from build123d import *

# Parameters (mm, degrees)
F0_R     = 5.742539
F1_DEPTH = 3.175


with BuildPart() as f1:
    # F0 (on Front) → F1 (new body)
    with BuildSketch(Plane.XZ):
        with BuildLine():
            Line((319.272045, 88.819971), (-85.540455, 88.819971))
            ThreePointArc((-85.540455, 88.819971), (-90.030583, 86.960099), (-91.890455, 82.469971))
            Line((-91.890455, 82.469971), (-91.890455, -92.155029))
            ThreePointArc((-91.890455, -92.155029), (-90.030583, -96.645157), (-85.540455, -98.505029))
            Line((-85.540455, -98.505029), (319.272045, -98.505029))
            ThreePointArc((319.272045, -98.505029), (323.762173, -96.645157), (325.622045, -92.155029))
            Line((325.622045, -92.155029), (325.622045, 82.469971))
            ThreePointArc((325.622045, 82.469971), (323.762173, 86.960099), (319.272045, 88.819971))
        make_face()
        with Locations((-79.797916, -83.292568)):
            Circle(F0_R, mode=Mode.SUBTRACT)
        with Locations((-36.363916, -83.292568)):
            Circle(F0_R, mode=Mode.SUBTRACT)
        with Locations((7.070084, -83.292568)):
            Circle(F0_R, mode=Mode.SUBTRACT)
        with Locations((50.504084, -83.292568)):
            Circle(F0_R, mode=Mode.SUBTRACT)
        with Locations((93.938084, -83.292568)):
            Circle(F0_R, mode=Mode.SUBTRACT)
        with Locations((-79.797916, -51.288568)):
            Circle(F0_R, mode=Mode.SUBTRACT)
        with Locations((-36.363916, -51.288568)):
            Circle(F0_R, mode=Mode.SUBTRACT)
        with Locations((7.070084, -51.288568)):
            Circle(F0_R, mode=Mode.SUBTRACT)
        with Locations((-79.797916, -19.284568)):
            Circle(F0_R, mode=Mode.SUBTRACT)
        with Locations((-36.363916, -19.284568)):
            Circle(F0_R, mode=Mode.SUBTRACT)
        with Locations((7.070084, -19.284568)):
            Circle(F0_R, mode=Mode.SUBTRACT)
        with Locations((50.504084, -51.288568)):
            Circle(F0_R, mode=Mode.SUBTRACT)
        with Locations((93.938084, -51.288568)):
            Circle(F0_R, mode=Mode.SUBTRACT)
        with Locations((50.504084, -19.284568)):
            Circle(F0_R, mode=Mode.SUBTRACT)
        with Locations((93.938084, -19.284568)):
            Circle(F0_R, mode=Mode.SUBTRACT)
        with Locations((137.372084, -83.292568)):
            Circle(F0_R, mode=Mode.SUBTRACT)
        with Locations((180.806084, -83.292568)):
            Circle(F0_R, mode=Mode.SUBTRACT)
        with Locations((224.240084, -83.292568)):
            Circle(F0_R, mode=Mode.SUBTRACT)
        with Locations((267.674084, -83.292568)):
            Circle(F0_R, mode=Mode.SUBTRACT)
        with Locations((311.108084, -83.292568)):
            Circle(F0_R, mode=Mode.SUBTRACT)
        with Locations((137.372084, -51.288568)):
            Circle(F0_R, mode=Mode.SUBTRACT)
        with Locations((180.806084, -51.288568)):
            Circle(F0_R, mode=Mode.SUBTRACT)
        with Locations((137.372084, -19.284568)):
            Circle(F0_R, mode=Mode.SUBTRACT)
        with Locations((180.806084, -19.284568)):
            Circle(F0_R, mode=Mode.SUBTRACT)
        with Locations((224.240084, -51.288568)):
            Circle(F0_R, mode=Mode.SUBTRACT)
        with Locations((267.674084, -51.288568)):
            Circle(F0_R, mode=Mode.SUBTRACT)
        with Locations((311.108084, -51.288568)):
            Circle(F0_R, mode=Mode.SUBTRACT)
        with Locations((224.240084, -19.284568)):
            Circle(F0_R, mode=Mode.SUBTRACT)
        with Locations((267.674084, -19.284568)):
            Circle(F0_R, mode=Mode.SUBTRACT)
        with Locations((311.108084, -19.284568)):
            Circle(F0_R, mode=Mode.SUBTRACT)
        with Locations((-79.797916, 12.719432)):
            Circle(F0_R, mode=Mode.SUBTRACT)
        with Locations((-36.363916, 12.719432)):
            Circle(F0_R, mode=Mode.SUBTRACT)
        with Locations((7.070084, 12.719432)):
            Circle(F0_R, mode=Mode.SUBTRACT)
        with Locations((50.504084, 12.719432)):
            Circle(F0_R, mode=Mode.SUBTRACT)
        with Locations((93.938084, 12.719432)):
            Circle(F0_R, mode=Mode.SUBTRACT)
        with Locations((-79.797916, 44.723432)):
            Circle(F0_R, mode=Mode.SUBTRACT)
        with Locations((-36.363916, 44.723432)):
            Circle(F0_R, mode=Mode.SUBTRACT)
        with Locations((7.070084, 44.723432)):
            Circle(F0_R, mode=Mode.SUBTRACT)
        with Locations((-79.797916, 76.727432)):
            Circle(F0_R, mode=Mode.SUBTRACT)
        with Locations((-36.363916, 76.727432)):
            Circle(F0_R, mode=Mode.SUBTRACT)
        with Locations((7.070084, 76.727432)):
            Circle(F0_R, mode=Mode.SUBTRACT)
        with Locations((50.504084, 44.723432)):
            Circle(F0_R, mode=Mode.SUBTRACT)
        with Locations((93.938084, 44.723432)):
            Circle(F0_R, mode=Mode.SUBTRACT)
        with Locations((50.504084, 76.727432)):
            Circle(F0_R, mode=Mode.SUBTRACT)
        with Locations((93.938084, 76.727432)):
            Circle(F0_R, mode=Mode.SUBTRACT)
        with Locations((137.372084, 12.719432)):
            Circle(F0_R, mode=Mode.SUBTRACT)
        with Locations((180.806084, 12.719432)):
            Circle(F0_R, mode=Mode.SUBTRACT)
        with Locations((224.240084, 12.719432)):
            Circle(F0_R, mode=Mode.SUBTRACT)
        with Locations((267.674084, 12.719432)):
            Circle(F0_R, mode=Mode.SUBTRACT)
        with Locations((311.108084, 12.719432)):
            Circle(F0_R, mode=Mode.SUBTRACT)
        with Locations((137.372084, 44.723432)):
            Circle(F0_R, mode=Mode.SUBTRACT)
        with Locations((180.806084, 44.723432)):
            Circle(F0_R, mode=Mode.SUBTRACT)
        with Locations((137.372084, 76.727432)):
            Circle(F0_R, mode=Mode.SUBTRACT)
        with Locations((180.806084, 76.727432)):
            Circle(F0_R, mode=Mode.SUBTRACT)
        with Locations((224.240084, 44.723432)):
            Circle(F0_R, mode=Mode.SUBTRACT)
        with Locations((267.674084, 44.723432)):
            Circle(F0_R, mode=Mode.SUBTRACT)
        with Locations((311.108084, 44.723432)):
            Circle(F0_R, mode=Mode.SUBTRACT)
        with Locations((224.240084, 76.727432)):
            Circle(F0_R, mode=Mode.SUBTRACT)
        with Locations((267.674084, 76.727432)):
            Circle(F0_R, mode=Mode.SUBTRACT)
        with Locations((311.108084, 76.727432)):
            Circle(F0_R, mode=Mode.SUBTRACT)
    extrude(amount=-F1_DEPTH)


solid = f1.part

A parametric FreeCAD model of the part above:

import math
import FreeCAD as App
import Part
import Sketcher
Q = App.Units.Quantity

doc = App.newDocument("Part")
params = doc.addObject("Spreadsheet::Sheet", "Params")
for row, (alias, value) in enumerate([
    ("sketch1_radius", "0.25 in"),
    ("sketch1_width", "15.9375 in"),
    ("sketch1_height", "6.875 in"),
    ("pad1_length", "0.125 in"),
], start=1):
    params.set(f"A{row}", alias)
    params.set(f"B{row}", "=" + value)
    params.setAlias(f"B{row}", alias)

body = doc.addObject("PartDesign::Body", "Body")

sketch1 = body.newObject("Sketcher::SketchObject", "Sketch")
sketch1.AttachmentSupport = (doc.getObject("XZ_Plane"), [""])
sketch1.MapMode = "FlatFace"
sketch1.addGeometry(Part.LineSegment(App.Vector(319, 89, 0), App.Vector(-86, 89, 0)), False)
sketch1.addGeometry(Part.ArcOfCircle(Part.Circle(App.Vector(-86, 82, 0), App.Vector(0, 0, 1), 6), math.radians(90), math.radians(180)), False)
sketch1.addGeometry(Part.LineSegment(App.Vector(-92, 82, 0), App.Vector(-92, -92, 0)), False)
sketch1.addGeometry(Part.ArcOfCircle(Part.Circle(App.Vector(-86, -92, 0), App.Vector(0, 0, 1), 6), math.radians(-180), math.radians(-90)), False)
sketch1.addGeometry(Part.LineSegment(App.Vector(-86, -99, 0), App.Vector(319, -99, 0)), False)
sketch1.addGeometry(Part.ArcOfCircle(Part.Circle(App.Vector(319, -92, 0), App.Vector(0, 0, 1), 6), math.radians(-90), math.radians(0)), False)
sketch1.addGeometry(Part.LineSegment(App.Vector(326, -92, 0), App.Vector(326, 82, 0)), False)
sketch1.addGeometry(Part.ArcOfCircle(Part.Circle(App.Vector(319, 82, 0), App.Vector(0, 0, 1), 6), math.radians(0), math.radians(90)), False)
sketch1.addGeometry(Part.Circle(App.Vector(-80, -83, 0), App.Vector(0, 0, 1), 6), False)
sketch1.addGeometry(Part.Circle(App.Vector(-36, -83, 0), App.Vector(0, 0, 1), 6), False)
sketch1.addGeometry(Part.Circle(App.Vector(7, -83, 0), App.Vector(0, 0, 1), 6), False)
sketch1.addGeometry(Part.Circle(App.Vector(-80, -51, 0), App.Vector(0, 0, 1), 6), False)
sketch1.addGeometry(Part.Circle(App.Vector(-36, -51, 0), App.Vector(0, 0, 1), 6), False)
sketch1.addGeometry(Part.Circle(App.Vector(7, -51, 0), App.Vector(0, 0, 1), 6), False)
sketch1.addGeometry(Part.Circle(App.Vector(51, -83, 0), App.Vector(0, 0, 1), 6), False)
sketch1.addGeometry(Part.Circle(App.Vector(94, -83, 0), App.Vector(0, 0, 1), 6), False)
sketch1.addGeometry(Part.Circle(App.Vector(51, -51, 0), App.Vector(0, 0, 1), 6), False)
sketch1.addGeometry(Part.Circle(App.Vector(94, -51, 0), App.Vector(0, 0, 1), 6), False)
sketch1.addGeometry(Part.Circle(App.Vector(-80, -19, 0), App.Vector(0, 0, 1), 6), False)
sketch1.addGeometry(Part.Circle(App.Vector(-36, -19, 0), App.Vector(0, 0, 1), 6), False)
sketch1.addGeometry(Part.Circle(App.Vector(7, -19, 0), App.Vector(0, 0, 1), 6), False)
sketch1.addGeometry(Part.Circle(App.Vector(51, -19, 0), App.Vector(0, 0, 1), 6), False)
sketch1.addGeometry(Part.Circle(App.Vector(94, -19, 0), App.Vector(0, 0, 1), 6), False)
sketch1.addGeometry(Part.Circle(App.Vector(137, -83, 0), App.Vector(0, 0, 1), 6), False)
sketch1.addGeometry(Part.Circle(App.Vector(181, -83, 0), App.Vector(0, 0, 1), 6), False)
sketch1.addGeometry(Part.Circle(App.Vector(137, -51, 0), App.Vector(0, 0, 1), 6), False)
sketch1.addGeometry(Part.Circle(App.Vector(181, -51, 0), App.Vector(0, 0, 1), 6), False)
sketch1.addGeometry(Part.Circle(App.Vector(224, -83, 0), App.Vector(0, 0, 1), 6), False)
sketch1.addGeometry(Part.Circle(App.Vector(268, -83, 0), App.Vector(0, 0, 1), 6), False)
sketch1.addGeometry(Part.Circle(App.Vector(311, -83, 0), App.Vector(0, 0, 1), 6), False)
sketch1.addGeometry(Part.Circle(App.Vector(224, -51, 0), App.Vector(0, 0, 1), 6), False)
sketch1.addGeometry(Part.Circle(App.Vector(268, -51, 0), App.Vector(0, 0, 1), 6), False)
sketch1.addGeometry(Part.Circle(App.Vector(311, -51, 0), App.Vector(0, 0, 1), 6), False)
sketch1.addGeometry(Part.Circle(App.Vector(137, -19, 0), App.Vector(0, 0, 1), 6), False)
sketch1.addGeometry(Part.Circle(App.Vector(181, -19, 0), App.Vector(0, 0, 1), 6), False)
sketch1.addGeometry(Part.Circle(App.Vector(224, -19, 0), App.Vector(0, 0, 1), 6), False)
sketch1.addGeometry(Part.Circle(App.Vector(268, -19, 0), App.Vector(0, 0, 1), 6), False)
sketch1.addGeometry(Part.Circle(App.Vector(311, -19, 0), App.Vector(0, 0, 1), 6), False)
sketch1.addGeometry(Part.Circle(App.Vector(-80, 13, 0), App.Vector(0, 0, 1), 6), False)
sketch1.addGeometry(Part.Circle(App.Vector(-36, 13, 0), App.Vector(0, 0, 1), 6), False)
sketch1.addGeometry(Part.Circle(App.Vector(7, 13, 0), App.Vector(0, 0, 1), 6), False)
sketch1.addGeometry(Part.Circle(App.Vector(51, 13, 0), App.Vector(0, 0, 1), 6), False)
sketch1.addGeometry(Part.Circle(App.Vector(94, 13, 0), App.Vector(0, 0, 1), 6), False)
sketch1.addGeometry(Part.Circle(App.Vector(-80, 45, 0), App.Vector(0, 0, 1), 6), False)
sketch1.addGeometry(Part.Circle(App.Vector(-36, 45, 0), App.Vector(0, 0, 1), 6), False)
sketch1.addGeometry(Part.Circle(App.Vector(7, 45, 0), App.Vector(0, 0, 1), 6), False)
sketch1.addGeometry(Part.Circle(App.Vector(-80, 77, 0), App.Vector(0, 0, 1), 6), False)
sketch1.addGeometry(Part.Circle(App.Vector(-36, 77, 0), App.Vector(0, 0, 1), 6), False)
sketch1.addGeometry(Part.Circle(App.Vector(7, 77, 0), App.Vector(0, 0, 1), 6), False)
sketch1.addGeometry(Part.Circle(App.Vector(51, 45, 0), App.Vector(0, 0, 1), 6), False)
sketch1.addGeometry(Part.Circle(App.Vector(94, 45, 0), App.Vector(0, 0, 1), 6), False)
sketch1.addGeometry(Part.Circle(App.Vector(51, 77, 0), App.Vector(0, 0, 1), 6), False)
sketch1.addGeometry(Part.Circle(App.Vector(94, 77, 0), App.Vector(0, 0, 1), 6), False)
sketch1.addGeometry(Part.Circle(App.Vector(137, 13, 0), App.Vector(0, 0, 1), 6), False)
sketch1.addGeometry(Part.Circle(App.Vector(181, 13, 0), App.Vector(0, 0, 1), 6), False)
sketch1.addGeometry(Part.Circle(App.Vector(224, 13, 0), App.Vector(0, 0, 1), 6), False)
sketch1.addGeometry(Part.Circle(App.Vector(268, 13, 0), App.Vector(0, 0, 1), 6), False)
sketch1.addGeometry(Part.Circle(App.Vector(311, 13, 0), App.Vector(0, 0, 1), 6), False)
sketch1.addGeometry(Part.Circle(App.Vector(137, 45, 0), App.Vector(0, 0, 1), 6), False)
sketch1.addGeometry(Part.Circle(App.Vector(181, 45, 0), App.Vector(0, 0, 1), 6), False)
sketch1.addGeometry(Part.Circle(App.Vector(137, 77, 0), App.Vector(0, 0, 1), 6), False)
sketch1.addGeometry(Part.Circle(App.Vector(181, 77, 0), App.Vector(0, 0, 1), 6), False)
sketch1.addGeometry(Part.Circle(App.Vector(224, 45, 0), App.Vector(0, 0, 1), 6), False)
sketch1.addGeometry(Part.Circle(App.Vector(268, 45, 0), App.Vector(0, 0, 1), 6), False)
sketch1.addGeometry(Part.Circle(App.Vector(311, 45, 0), App.Vector(0, 0, 1), 6), False)
sketch1.addGeometry(Part.Circle(App.Vector(224, 77, 0), App.Vector(0, 0, 1), 6), False)
sketch1.addGeometry(Part.Circle(App.Vector(268, 77, 0), App.Vector(0, 0, 1), 6), False)
sketch1.addGeometry(Part.Circle(App.Vector(311, 77, 0), App.Vector(0, 0, 1), 6), False)
sketch1.addConstraint(Sketcher.Constraint("Tangent", 0, 2, 1, 1))
sketch1.addConstraint(Sketcher.Constraint("Tangent", 1, 2, 2, 1))
sketch1.addConstraint(Sketcher.Constraint("Tangent", 2, 2, 3, 1))
sketch1.addConstraint(Sketcher.Constraint("Tangent", 3, 2, 4, 1))
sketch1.addConstraint(Sketcher.Constraint("Tangent", 4, 2, 5, 1))
sketch1.addConstraint(Sketcher.Constraint("Tangent", 5, 2, 6, 1))
sketch1.addConstraint(Sketcher.Constraint("Tangent", 6, 2, 7, 1))
sketch1.addConstraint(Sketcher.Constraint("Tangent", 7, 2, 0, 1))
sketch1.addConstraint(Sketcher.Constraint("Horizontal", 0))
sketch1.addConstraint(Sketcher.Constraint("Vertical", 2))
sketch1.addConstraint(Sketcher.Constraint("Horizontal", 4))
sketch1.addConstraint(Sketcher.Constraint("Vertical", 6))
sketch1.addConstraint(Sketcher.Constraint("Equal", 1, 3))
sketch1.addConstraint(Sketcher.Constraint("Equal", 3, 5))
sketch1.addConstraint(Sketcher.Constraint("Equal", 5, 7))
sketch1.addConstraint(Sketcher.Constraint("Equal", 8, 9))
sketch1.addConstraint(Sketcher.Constraint("Equal", 9, 10))
sketch1.addConstraint(Sketcher.Constraint("Equal", 10, 11))
sketch1.addConstraint(Sketcher.Constraint("Equal", 11, 12))
sketch1.addConstraint(Sketcher.Constraint("Equal", 12, 13))
sketch1.addConstraint(Sketcher.Constraint("Equal", 13, 14))
sketch1.addConstraint(Sketcher.Constraint("Equal", 14, 15))
sketch1.addConstraint(Sketcher.Constraint("Equal", 15, 16))
sketch1.addConstraint(Sketcher.Constraint("Equal", 16, 17))
sketch1.addConstraint(Sketcher.Constraint("Equal", 17, 18))
sketch1.addConstraint(Sketcher.Constraint("Equal", 18, 19))
sketch1.addConstraint(Sketcher.Constraint("Equal", 19, 20))
sketch1.addConstraint(Sketcher.Constraint("Equal", 20, 21))
sketch1.addConstraint(Sketcher.Constraint("Equal", 21, 22))
sketch1.addConstraint(Sketcher.Constraint("Equal", 22, 23))
sketch1.addConstraint(Sketcher.Constraint("Equal", 23, 24))
sketch1.addConstraint(Sketcher.Constraint("Equal", 24, 25))
sketch1.addConstraint(Sketcher.Constraint("Equal", 25, 26))
sketch1.addConstraint(Sketcher.Constraint("Equal", 26, 27))
sketch1.addConstraint(Sketcher.Constraint("Equal", 27, 28))
sketch1.addConstraint(Sketcher.Constraint("Equal", 28, 29))
sketch1.addConstraint(Sketcher.Constraint("Equal", 29, 30))
sketch1.addConstraint(Sketcher.Constraint("Equal", 30, 31))
sketch1.addConstraint(Sketcher.Constraint("Equal", 31, 32))
sketch1.addConstraint(Sketcher.Constraint("Equal", 32, 33))
sketch1.addConstraint(Sketcher.Constraint("Equal", 33, 34))
sketch1.addConstraint(Sketcher.Constraint("Equal", 34, 35))
sketch1.addConstraint(Sketcher.Constraint("Equal", 35, 36))
sketch1.addConstraint(Sketcher.Constraint("Equal", 36, 37))
sketch1.addConstraint(Sketcher.Constraint("Equal", 37, 38))
sketch1.addConstraint(Sketcher.Constraint("Equal", 38, 39))
sketch1.addConstraint(Sketcher.Constraint("Equal", 39, 40))
sketch1.addConstraint(Sketcher.Constraint("Equal", 40, 41))
sketch1.addConstraint(Sketcher.Constraint("Equal", 41, 42))
sketch1.addConstraint(Sketcher.Constraint("Equal", 42, 43))
sketch1.addConstraint(Sketcher.Constraint("Equal", 43, 44))
sketch1.addConstraint(Sketcher.Constraint("Equal", 44, 45))
sketch1.addConstraint(Sketcher.Constraint("Equal", 45, 46))
sketch1.addConstraint(Sketcher.Constraint("Equal", 46, 47))
sketch1.addConstraint(Sketcher.Constraint("Equal", 47, 48))
sketch1.addConstraint(Sketcher.Constraint("Equal", 48, 49))
sketch1.addConstraint(Sketcher.Constraint("Equal", 49, 50))
sketch1.addConstraint(Sketcher.Constraint("Equal", 50, 51))
sketch1.addConstraint(Sketcher.Constraint("Equal", 51, 52))
sketch1.addConstraint(Sketcher.Constraint("Equal", 52, 53))
sketch1.addConstraint(Sketcher.Constraint("Equal", 53, 54))
sketch1.addConstraint(Sketcher.Constraint("Equal", 54, 55))
sketch1.addConstraint(Sketcher.Constraint("Equal", 55, 56))
sketch1.addConstraint(Sketcher.Constraint("Equal", 56, 57))
sketch1.addConstraint(Sketcher.Constraint("Equal", 57, 58))
sketch1.addConstraint(Sketcher.Constraint("Equal", 58, 59))
sketch1.addConstraint(Sketcher.Constraint("Equal", 59, 60))
sketch1.addConstraint(Sketcher.Constraint("Equal", 60, 61))
sketch1.addConstraint(Sketcher.Constraint("Equal", 61, 62))
sketch1.addConstraint(Sketcher.Constraint("Equal", 62, 63))
sketch1.addConstraint(Sketcher.Constraint("Equal", 63, 64))
sketch1.addConstraint(Sketcher.Constraint("Equal", 64, 65))
sketch1.addConstraint(Sketcher.Constraint("Equal", 65, 66))
sketch1.addConstraint(Sketcher.Constraint("Equal", 66, 67))
sketch1.addConstraint(Sketcher.Constraint("Horizontal", 8, 3, 9, 3))
sketch1.addConstraint(Sketcher.Constraint("Horizontal", 9, 3, 10, 3))
sketch1.addConstraint(Sketcher.Constraint("Horizontal", 11, 3, 12, 3))
sketch1.addConstraint(Sketcher.Constraint("Horizontal", 12, 3, 13, 3))
sketch1.addConstraint(Sketcher.Constraint("Horizontal", 10, 3, 14, 3))
sketch1.addConstraint(Sketcher.Constraint("Horizontal", 14, 3, 15, 3))
sketch1.addConstraint(Sketcher.Constraint("Horizontal", 13, 3, 16, 3))
sketch1.addConstraint(Sketcher.Constraint("Horizontal", 16, 3, 17, 3))
sketch1.addConstraint(Sketcher.Constraint("Horizontal", 18, 3, 19, 3))
sketch1.addConstraint(Sketcher.Constraint("Horizontal", 19, 3, 20, 3))
sketch1.addConstraint(Sketcher.Constraint("Horizontal", 20, 3, 21, 3))
sketch1.addConstraint(Sketcher.Constraint("Horizontal", 21, 3, 22, 3))
sketch1.addConstraint(Sketcher.Constraint("Horizontal", 15, 3, 23, 3))
sketch1.addConstraint(Sketcher.Constraint("Horizontal", 23, 3, 24, 3))
sketch1.addConstraint(Sketcher.Constraint("Horizontal", 17, 3, 25, 3))
sketch1.addConstraint(Sketcher.Constraint("Horizontal", 25, 3, 26, 3))
sketch1.addConstraint(Sketcher.Constraint("Horizontal", 24, 3, 27, 3))
sketch1.addConstraint(Sketcher.Constraint("Horizontal", 27, 3, 28, 3))
sketch1.addConstraint(Sketcher.Constraint("Horizontal", 28, 3, 29, 3))
sketch1.addConstraint(Sketcher.Constraint("Horizontal", 26, 3, 30, 3))
sketch1.addConstraint(Sketcher.Constraint("Horizontal", 30, 3, 31, 3))
sketch1.addConstraint(Sketcher.Constraint("Horizontal", 31, 3, 32, 3))
sketch1.addConstraint(Sketcher.Constraint("Horizontal", 22, 3, 33, 3))
sketch1.addConstraint(Sketcher.Constraint("Horizontal", 33, 3, 34, 3))
sketch1.addConstraint(Sketcher.Constraint("Horizontal", 34, 3, 35, 3))
sketch1.addConstraint(Sketcher.Constraint("Horizontal", 35, 3, 36, 3))
sketch1.addConstraint(Sketcher.Constraint("Horizontal", 36, 3, 37, 3))
sketch1.addConstraint(Sketcher.Constraint("Horizontal", 38, 3, 39, 3))
sketch1.addConstraint(Sketcher.Constraint("Horizontal", 39, 3, 40, 3))
sketch1.addConstraint(Sketcher.Constraint("Horizontal", 40, 3, 41, 3))
sketch1.addConstraint(Sketcher.Constraint("Horizontal", 41, 3, 42, 3))
sketch1.addConstraint(Sketcher.Constraint("Horizontal", 43, 3, 44, 3))
sketch1.addConstraint(Sketcher.Constraint("Horizontal", 44, 3, 45, 3))
sketch1.addConstraint(Sketcher.Constraint("Horizontal", 46, 3, 47, 3))
sketch1.addConstraint(Sketcher.Constraint("Horizontal", 47, 3, 48, 3))
sketch1.addConstraint(Sketcher.Constraint("Horizontal", 45, 3, 49, 3))
sketch1.addConstraint(Sketcher.Constraint("Horizontal", 49, 3, 50, 3))
sketch1.addConstraint(Sketcher.Constraint("Horizontal", 48, 3, 51, 3))
sketch1.addConstraint(Sketcher.Constraint("Horizontal", 51, 3, 52, 3))
sketch1.addConstraint(Sketcher.Constraint("Horizontal", 42, 3, 53, 3))
sketch1.addConstraint(Sketcher.Constraint("Horizontal", 53, 3, 54, 3))
sketch1.addConstraint(Sketcher.Constraint("Horizontal", 54, 3, 55, 3))
sketch1.addConstraint(Sketcher.Constraint("Horizontal", 55, 3, 56, 3))
sketch1.addConstraint(Sketcher.Constraint("Horizontal", 56, 3, 57, 3))
sketch1.addConstraint(Sketcher.Constraint("Horizontal", 50, 3, 58, 3))
sketch1.addConstraint(Sketcher.Constraint("Horizontal", 58, 3, 59, 3))
sketch1.addConstraint(Sketcher.Constraint("Horizontal", 52, 3, 60, 3))
sketch1.addConstraint(Sketcher.Constraint("Horizontal", 60, 3, 61, 3))
sketch1.addConstraint(Sketcher.Constraint("Horizontal", 59, 3, 62, 3))
sketch1.addConstraint(Sketcher.Constraint("Horizontal", 62, 3, 63, 3))
sketch1.addConstraint(Sketcher.Constraint("Horizontal", 63, 3, 64, 3))
sketch1.addConstraint(Sketcher.Constraint("Horizontal", 61, 3, 65, 3))
sketch1.addConstraint(Sketcher.Constraint("Horizontal", 65, 3, 66, 3))
sketch1.addConstraint(Sketcher.Constraint("Horizontal", 66, 3, 67, 3))
sketch1.addConstraint(Sketcher.Constraint("Vertical", 8, 3, 11, 3))
sketch1.addConstraint(Sketcher.Constraint("Vertical", 9, 3, 12, 3))
sketch1.addConstraint(Sketcher.Constraint("Vertical", 10, 3, 13, 3))
sketch1.addConstraint(Sketcher.Constraint("Vertical", 14, 3, 16, 3))
sketch1.addConstraint(Sketcher.Constraint("Vertical", 15, 3, 17, 3))
sketch1.addConstraint(Sketcher.Constraint("Vertical", 11, 3, 18, 3))
sketch1.addConstraint(Sketcher.Constraint("Vertical", 12, 3, 19, 3))
sketch1.addConstraint(Sketcher.Constraint("Vertical", 13, 3, 20, 3))
sketch1.addConstraint(Sketcher.Constraint("Vertical", 16, 3, 21, 3))
sketch1.addConstraint(Sketcher.Constraint("Vertical", 17, 3, 22, 3))
sketch1.addConstraint(Sketcher.Constraint("Vertical", 23, 3, 25, 3))
sketch1.addConstraint(Sketcher.Constraint("Vertical", 24, 3, 26, 3))
sketch1.addConstraint(Sketcher.Constraint("Vertical", 27, 3, 30, 3))
sketch1.addConstraint(Sketcher.Constraint("Vertical", 28, 3, 31, 3))
sketch1.addConstraint(Sketcher.Constraint("Vertical", 29, 3, 32, 3))
sketch1.addConstraint(Sketcher.Constraint("Vertical", 25, 3, 33, 3))
sketch1.addConstraint(Sketcher.Constraint("Vertical", 26, 3, 34, 3))
sketch1.addConstraint(Sketcher.Constraint("Vertical", 30, 3, 35, 3))
sketch1.addConstraint(Sketcher.Constraint("Vertical", 31, 3, 36, 3))
sketch1.addConstraint(Sketcher.Constraint("Vertical", 32, 3, 37, 3))
sketch1.addConstraint(Sketcher.Constraint("Vertical", 18, 3, 38, 3))
sketch1.addConstraint(Sketcher.Constraint("Vertical", 19, 3, 39, 3))
sketch1.addConstraint(Sketcher.Constraint("Vertical", 20, 3, 40, 3))
sketch1.addConstraint(Sketcher.Constraint("Vertical", 21, 3, 41, 3))
sketch1.addConstraint(Sketcher.Constraint("Vertical", 22, 3, 42, 3))
sketch1.addConstraint(Sketcher.Constraint("Vertical", 38, 3, 43, 3))
sketch1.addConstraint(Sketcher.Constraint("Vertical", 39, 3, 44, 3))
sketch1.addConstraint(Sketcher.Constraint("Vertical", 40, 3, 45, 3))
sketch1.addConstraint(Sketcher.Constraint("Vertical", 43, 3, 46, 3))
sketch1.addConstraint(Sketcher.Constraint("Vertical", 44, 3, 47, 3))
sketch1.addConstraint(Sketcher.Constraint("Vertical", 45, 3, 48, 3))
sketch1.addConstraint(Sketcher.Constraint("Vertical", 41, 3, 49, 3))
sketch1.addConstraint(Sketcher.Constraint("Vertical", 42, 3, 50, 3))
sketch1.addConstraint(Sketcher.Constraint("Vertical", 49, 3, 51, 3))
sketch1.addConstraint(Sketcher.Constraint("Vertical", 50, 3, 52, 3))
sketch1.addConstraint(Sketcher.Constraint("Vertical", 33, 3, 53, 3))
sketch1.addConstraint(Sketcher.Constraint("Vertical", 34, 3, 54, 3))
sketch1.addConstraint(Sketcher.Constraint("Vertical", 35, 3, 55, 3))
sketch1.addConstraint(Sketcher.Constraint("Vertical", 36, 3, 56, 3))
sketch1.addConstraint(Sketcher.Constraint("Vertical", 37, 3, 57, 3))
sketch1.addConstraint(Sketcher.Constraint("Vertical", 53, 3, 58, 3))
sketch1.addConstraint(Sketcher.Constraint("Vertical", 54, 3, 59, 3))
sketch1.addConstraint(Sketcher.Constraint("Vertical", 58, 3, 60, 3))
sketch1.addConstraint(Sketcher.Constraint("Vertical", 59, 3, 61, 3))
sketch1.addConstraint(Sketcher.Constraint("Vertical", 55, 3, 62, 3))
sketch1.addConstraint(Sketcher.Constraint("Vertical", 56, 3, 63, 3))
sketch1.addConstraint(Sketcher.Constraint("Vertical", 57, 3, 64, 3))
sketch1.addConstraint(Sketcher.Constraint("Vertical", 62, 3, 65, 3))
sketch1.addConstraint(Sketcher.Constraint("Vertical", 63, 3, 66, 3))
sketch1.addConstraint(Sketcher.Constraint("Vertical", 64, 3, 67, 3))
sketch1.addConstraint(Sketcher.Constraint("Radius", 1, Q("0.25 in")))
sketch1.addConstraint(Sketcher.Constraint("DistanceX", 0, 2, 0, 1, Q("15.9375 in")))
sketch1.addConstraint(Sketcher.Constraint("DistanceY", 2, 2, 2, 1, Q("6.875 in")))
sketch1.addConstraint(Sketcher.Constraint("Diameter", 8, 11.485078))
sketch1.addConstraint(Sketcher.Constraint("DistanceY", -1, 1, 1, 3, 82.469971))
sketch1.addConstraint(Sketcher.Constraint("DistanceY", 8, 3, -1, 1, 83.292568))
sketch1.addConstraint(Sketcher.Constraint("DistanceY", 18, 3, -1, 1, 19.284568))
sketch1.addConstraint(Sketcher.Constraint("DistanceY", -1, 1, 46, 3, 76.727432))
sketch1.addConstraint(Sketcher.Constraint("DistanceX", 1, 3, -1, 1, 85.540455))
sketch1.addConstraint(Sketcher.Constraint("DistanceX", 8, 3, -1, 1, 79.797916))
sketch1.addConstraint(Sketcher.Constraint("DistanceX", 9, 3, -1, 1, 36.363916))
sketch1.addConstraint(Sketcher.Constraint("DistanceX", -1, 1, 10, 3, 7.070084))
sketch1.addConstraint(Sketcher.Constraint("DistanceY", 11, 3, -1, 1, 51.288568))
sketch1.addConstraint(Sketcher.Constraint("DistanceX", -1, 1, 14, 3, 50.504084))
sketch1.addConstraint(Sketcher.Constraint("DistanceX", -1, 1, 15, 3, 93.938084))
sketch1.addConstraint(Sketcher.Constraint("DistanceX", -1, 1, 23, 3, 137.372084))
sketch1.addConstraint(Sketcher.Constraint("DistanceX", -1, 1, 24, 3, 180.806084))
sketch1.addConstraint(Sketcher.Constraint("DistanceX", -1, 1, 27, 3, 224.240084))
sketch1.addConstraint(Sketcher.Constraint("DistanceX", -1, 1, 28, 3, 267.674084))
sketch1.addConstraint(Sketcher.Constraint("DistanceX", -1, 1, 29, 3, 311.108084))
sketch1.addConstraint(Sketcher.Constraint("DistanceY", -1, 1, 38, 3, 12.719432))
sketch1.addConstraint(Sketcher.Constraint("DistanceY", -1, 1, 43, 3, 44.723432))
sketch1.setExpression("Constraints[178]", "Params.sketch1_radius")
sketch1.setExpression("Constraints[179]", "Params.sketch1_width")
sketch1.setExpression("Constraints[180]", "Params.sketch1_height")
pad1 = body.newObject("PartDesign::Pad", "Pad")
pad1.Profile = sketch1
pad1.setExpression("Length", "Params.pad1_length")
pad1.Reversed = True

doc.recompute()
